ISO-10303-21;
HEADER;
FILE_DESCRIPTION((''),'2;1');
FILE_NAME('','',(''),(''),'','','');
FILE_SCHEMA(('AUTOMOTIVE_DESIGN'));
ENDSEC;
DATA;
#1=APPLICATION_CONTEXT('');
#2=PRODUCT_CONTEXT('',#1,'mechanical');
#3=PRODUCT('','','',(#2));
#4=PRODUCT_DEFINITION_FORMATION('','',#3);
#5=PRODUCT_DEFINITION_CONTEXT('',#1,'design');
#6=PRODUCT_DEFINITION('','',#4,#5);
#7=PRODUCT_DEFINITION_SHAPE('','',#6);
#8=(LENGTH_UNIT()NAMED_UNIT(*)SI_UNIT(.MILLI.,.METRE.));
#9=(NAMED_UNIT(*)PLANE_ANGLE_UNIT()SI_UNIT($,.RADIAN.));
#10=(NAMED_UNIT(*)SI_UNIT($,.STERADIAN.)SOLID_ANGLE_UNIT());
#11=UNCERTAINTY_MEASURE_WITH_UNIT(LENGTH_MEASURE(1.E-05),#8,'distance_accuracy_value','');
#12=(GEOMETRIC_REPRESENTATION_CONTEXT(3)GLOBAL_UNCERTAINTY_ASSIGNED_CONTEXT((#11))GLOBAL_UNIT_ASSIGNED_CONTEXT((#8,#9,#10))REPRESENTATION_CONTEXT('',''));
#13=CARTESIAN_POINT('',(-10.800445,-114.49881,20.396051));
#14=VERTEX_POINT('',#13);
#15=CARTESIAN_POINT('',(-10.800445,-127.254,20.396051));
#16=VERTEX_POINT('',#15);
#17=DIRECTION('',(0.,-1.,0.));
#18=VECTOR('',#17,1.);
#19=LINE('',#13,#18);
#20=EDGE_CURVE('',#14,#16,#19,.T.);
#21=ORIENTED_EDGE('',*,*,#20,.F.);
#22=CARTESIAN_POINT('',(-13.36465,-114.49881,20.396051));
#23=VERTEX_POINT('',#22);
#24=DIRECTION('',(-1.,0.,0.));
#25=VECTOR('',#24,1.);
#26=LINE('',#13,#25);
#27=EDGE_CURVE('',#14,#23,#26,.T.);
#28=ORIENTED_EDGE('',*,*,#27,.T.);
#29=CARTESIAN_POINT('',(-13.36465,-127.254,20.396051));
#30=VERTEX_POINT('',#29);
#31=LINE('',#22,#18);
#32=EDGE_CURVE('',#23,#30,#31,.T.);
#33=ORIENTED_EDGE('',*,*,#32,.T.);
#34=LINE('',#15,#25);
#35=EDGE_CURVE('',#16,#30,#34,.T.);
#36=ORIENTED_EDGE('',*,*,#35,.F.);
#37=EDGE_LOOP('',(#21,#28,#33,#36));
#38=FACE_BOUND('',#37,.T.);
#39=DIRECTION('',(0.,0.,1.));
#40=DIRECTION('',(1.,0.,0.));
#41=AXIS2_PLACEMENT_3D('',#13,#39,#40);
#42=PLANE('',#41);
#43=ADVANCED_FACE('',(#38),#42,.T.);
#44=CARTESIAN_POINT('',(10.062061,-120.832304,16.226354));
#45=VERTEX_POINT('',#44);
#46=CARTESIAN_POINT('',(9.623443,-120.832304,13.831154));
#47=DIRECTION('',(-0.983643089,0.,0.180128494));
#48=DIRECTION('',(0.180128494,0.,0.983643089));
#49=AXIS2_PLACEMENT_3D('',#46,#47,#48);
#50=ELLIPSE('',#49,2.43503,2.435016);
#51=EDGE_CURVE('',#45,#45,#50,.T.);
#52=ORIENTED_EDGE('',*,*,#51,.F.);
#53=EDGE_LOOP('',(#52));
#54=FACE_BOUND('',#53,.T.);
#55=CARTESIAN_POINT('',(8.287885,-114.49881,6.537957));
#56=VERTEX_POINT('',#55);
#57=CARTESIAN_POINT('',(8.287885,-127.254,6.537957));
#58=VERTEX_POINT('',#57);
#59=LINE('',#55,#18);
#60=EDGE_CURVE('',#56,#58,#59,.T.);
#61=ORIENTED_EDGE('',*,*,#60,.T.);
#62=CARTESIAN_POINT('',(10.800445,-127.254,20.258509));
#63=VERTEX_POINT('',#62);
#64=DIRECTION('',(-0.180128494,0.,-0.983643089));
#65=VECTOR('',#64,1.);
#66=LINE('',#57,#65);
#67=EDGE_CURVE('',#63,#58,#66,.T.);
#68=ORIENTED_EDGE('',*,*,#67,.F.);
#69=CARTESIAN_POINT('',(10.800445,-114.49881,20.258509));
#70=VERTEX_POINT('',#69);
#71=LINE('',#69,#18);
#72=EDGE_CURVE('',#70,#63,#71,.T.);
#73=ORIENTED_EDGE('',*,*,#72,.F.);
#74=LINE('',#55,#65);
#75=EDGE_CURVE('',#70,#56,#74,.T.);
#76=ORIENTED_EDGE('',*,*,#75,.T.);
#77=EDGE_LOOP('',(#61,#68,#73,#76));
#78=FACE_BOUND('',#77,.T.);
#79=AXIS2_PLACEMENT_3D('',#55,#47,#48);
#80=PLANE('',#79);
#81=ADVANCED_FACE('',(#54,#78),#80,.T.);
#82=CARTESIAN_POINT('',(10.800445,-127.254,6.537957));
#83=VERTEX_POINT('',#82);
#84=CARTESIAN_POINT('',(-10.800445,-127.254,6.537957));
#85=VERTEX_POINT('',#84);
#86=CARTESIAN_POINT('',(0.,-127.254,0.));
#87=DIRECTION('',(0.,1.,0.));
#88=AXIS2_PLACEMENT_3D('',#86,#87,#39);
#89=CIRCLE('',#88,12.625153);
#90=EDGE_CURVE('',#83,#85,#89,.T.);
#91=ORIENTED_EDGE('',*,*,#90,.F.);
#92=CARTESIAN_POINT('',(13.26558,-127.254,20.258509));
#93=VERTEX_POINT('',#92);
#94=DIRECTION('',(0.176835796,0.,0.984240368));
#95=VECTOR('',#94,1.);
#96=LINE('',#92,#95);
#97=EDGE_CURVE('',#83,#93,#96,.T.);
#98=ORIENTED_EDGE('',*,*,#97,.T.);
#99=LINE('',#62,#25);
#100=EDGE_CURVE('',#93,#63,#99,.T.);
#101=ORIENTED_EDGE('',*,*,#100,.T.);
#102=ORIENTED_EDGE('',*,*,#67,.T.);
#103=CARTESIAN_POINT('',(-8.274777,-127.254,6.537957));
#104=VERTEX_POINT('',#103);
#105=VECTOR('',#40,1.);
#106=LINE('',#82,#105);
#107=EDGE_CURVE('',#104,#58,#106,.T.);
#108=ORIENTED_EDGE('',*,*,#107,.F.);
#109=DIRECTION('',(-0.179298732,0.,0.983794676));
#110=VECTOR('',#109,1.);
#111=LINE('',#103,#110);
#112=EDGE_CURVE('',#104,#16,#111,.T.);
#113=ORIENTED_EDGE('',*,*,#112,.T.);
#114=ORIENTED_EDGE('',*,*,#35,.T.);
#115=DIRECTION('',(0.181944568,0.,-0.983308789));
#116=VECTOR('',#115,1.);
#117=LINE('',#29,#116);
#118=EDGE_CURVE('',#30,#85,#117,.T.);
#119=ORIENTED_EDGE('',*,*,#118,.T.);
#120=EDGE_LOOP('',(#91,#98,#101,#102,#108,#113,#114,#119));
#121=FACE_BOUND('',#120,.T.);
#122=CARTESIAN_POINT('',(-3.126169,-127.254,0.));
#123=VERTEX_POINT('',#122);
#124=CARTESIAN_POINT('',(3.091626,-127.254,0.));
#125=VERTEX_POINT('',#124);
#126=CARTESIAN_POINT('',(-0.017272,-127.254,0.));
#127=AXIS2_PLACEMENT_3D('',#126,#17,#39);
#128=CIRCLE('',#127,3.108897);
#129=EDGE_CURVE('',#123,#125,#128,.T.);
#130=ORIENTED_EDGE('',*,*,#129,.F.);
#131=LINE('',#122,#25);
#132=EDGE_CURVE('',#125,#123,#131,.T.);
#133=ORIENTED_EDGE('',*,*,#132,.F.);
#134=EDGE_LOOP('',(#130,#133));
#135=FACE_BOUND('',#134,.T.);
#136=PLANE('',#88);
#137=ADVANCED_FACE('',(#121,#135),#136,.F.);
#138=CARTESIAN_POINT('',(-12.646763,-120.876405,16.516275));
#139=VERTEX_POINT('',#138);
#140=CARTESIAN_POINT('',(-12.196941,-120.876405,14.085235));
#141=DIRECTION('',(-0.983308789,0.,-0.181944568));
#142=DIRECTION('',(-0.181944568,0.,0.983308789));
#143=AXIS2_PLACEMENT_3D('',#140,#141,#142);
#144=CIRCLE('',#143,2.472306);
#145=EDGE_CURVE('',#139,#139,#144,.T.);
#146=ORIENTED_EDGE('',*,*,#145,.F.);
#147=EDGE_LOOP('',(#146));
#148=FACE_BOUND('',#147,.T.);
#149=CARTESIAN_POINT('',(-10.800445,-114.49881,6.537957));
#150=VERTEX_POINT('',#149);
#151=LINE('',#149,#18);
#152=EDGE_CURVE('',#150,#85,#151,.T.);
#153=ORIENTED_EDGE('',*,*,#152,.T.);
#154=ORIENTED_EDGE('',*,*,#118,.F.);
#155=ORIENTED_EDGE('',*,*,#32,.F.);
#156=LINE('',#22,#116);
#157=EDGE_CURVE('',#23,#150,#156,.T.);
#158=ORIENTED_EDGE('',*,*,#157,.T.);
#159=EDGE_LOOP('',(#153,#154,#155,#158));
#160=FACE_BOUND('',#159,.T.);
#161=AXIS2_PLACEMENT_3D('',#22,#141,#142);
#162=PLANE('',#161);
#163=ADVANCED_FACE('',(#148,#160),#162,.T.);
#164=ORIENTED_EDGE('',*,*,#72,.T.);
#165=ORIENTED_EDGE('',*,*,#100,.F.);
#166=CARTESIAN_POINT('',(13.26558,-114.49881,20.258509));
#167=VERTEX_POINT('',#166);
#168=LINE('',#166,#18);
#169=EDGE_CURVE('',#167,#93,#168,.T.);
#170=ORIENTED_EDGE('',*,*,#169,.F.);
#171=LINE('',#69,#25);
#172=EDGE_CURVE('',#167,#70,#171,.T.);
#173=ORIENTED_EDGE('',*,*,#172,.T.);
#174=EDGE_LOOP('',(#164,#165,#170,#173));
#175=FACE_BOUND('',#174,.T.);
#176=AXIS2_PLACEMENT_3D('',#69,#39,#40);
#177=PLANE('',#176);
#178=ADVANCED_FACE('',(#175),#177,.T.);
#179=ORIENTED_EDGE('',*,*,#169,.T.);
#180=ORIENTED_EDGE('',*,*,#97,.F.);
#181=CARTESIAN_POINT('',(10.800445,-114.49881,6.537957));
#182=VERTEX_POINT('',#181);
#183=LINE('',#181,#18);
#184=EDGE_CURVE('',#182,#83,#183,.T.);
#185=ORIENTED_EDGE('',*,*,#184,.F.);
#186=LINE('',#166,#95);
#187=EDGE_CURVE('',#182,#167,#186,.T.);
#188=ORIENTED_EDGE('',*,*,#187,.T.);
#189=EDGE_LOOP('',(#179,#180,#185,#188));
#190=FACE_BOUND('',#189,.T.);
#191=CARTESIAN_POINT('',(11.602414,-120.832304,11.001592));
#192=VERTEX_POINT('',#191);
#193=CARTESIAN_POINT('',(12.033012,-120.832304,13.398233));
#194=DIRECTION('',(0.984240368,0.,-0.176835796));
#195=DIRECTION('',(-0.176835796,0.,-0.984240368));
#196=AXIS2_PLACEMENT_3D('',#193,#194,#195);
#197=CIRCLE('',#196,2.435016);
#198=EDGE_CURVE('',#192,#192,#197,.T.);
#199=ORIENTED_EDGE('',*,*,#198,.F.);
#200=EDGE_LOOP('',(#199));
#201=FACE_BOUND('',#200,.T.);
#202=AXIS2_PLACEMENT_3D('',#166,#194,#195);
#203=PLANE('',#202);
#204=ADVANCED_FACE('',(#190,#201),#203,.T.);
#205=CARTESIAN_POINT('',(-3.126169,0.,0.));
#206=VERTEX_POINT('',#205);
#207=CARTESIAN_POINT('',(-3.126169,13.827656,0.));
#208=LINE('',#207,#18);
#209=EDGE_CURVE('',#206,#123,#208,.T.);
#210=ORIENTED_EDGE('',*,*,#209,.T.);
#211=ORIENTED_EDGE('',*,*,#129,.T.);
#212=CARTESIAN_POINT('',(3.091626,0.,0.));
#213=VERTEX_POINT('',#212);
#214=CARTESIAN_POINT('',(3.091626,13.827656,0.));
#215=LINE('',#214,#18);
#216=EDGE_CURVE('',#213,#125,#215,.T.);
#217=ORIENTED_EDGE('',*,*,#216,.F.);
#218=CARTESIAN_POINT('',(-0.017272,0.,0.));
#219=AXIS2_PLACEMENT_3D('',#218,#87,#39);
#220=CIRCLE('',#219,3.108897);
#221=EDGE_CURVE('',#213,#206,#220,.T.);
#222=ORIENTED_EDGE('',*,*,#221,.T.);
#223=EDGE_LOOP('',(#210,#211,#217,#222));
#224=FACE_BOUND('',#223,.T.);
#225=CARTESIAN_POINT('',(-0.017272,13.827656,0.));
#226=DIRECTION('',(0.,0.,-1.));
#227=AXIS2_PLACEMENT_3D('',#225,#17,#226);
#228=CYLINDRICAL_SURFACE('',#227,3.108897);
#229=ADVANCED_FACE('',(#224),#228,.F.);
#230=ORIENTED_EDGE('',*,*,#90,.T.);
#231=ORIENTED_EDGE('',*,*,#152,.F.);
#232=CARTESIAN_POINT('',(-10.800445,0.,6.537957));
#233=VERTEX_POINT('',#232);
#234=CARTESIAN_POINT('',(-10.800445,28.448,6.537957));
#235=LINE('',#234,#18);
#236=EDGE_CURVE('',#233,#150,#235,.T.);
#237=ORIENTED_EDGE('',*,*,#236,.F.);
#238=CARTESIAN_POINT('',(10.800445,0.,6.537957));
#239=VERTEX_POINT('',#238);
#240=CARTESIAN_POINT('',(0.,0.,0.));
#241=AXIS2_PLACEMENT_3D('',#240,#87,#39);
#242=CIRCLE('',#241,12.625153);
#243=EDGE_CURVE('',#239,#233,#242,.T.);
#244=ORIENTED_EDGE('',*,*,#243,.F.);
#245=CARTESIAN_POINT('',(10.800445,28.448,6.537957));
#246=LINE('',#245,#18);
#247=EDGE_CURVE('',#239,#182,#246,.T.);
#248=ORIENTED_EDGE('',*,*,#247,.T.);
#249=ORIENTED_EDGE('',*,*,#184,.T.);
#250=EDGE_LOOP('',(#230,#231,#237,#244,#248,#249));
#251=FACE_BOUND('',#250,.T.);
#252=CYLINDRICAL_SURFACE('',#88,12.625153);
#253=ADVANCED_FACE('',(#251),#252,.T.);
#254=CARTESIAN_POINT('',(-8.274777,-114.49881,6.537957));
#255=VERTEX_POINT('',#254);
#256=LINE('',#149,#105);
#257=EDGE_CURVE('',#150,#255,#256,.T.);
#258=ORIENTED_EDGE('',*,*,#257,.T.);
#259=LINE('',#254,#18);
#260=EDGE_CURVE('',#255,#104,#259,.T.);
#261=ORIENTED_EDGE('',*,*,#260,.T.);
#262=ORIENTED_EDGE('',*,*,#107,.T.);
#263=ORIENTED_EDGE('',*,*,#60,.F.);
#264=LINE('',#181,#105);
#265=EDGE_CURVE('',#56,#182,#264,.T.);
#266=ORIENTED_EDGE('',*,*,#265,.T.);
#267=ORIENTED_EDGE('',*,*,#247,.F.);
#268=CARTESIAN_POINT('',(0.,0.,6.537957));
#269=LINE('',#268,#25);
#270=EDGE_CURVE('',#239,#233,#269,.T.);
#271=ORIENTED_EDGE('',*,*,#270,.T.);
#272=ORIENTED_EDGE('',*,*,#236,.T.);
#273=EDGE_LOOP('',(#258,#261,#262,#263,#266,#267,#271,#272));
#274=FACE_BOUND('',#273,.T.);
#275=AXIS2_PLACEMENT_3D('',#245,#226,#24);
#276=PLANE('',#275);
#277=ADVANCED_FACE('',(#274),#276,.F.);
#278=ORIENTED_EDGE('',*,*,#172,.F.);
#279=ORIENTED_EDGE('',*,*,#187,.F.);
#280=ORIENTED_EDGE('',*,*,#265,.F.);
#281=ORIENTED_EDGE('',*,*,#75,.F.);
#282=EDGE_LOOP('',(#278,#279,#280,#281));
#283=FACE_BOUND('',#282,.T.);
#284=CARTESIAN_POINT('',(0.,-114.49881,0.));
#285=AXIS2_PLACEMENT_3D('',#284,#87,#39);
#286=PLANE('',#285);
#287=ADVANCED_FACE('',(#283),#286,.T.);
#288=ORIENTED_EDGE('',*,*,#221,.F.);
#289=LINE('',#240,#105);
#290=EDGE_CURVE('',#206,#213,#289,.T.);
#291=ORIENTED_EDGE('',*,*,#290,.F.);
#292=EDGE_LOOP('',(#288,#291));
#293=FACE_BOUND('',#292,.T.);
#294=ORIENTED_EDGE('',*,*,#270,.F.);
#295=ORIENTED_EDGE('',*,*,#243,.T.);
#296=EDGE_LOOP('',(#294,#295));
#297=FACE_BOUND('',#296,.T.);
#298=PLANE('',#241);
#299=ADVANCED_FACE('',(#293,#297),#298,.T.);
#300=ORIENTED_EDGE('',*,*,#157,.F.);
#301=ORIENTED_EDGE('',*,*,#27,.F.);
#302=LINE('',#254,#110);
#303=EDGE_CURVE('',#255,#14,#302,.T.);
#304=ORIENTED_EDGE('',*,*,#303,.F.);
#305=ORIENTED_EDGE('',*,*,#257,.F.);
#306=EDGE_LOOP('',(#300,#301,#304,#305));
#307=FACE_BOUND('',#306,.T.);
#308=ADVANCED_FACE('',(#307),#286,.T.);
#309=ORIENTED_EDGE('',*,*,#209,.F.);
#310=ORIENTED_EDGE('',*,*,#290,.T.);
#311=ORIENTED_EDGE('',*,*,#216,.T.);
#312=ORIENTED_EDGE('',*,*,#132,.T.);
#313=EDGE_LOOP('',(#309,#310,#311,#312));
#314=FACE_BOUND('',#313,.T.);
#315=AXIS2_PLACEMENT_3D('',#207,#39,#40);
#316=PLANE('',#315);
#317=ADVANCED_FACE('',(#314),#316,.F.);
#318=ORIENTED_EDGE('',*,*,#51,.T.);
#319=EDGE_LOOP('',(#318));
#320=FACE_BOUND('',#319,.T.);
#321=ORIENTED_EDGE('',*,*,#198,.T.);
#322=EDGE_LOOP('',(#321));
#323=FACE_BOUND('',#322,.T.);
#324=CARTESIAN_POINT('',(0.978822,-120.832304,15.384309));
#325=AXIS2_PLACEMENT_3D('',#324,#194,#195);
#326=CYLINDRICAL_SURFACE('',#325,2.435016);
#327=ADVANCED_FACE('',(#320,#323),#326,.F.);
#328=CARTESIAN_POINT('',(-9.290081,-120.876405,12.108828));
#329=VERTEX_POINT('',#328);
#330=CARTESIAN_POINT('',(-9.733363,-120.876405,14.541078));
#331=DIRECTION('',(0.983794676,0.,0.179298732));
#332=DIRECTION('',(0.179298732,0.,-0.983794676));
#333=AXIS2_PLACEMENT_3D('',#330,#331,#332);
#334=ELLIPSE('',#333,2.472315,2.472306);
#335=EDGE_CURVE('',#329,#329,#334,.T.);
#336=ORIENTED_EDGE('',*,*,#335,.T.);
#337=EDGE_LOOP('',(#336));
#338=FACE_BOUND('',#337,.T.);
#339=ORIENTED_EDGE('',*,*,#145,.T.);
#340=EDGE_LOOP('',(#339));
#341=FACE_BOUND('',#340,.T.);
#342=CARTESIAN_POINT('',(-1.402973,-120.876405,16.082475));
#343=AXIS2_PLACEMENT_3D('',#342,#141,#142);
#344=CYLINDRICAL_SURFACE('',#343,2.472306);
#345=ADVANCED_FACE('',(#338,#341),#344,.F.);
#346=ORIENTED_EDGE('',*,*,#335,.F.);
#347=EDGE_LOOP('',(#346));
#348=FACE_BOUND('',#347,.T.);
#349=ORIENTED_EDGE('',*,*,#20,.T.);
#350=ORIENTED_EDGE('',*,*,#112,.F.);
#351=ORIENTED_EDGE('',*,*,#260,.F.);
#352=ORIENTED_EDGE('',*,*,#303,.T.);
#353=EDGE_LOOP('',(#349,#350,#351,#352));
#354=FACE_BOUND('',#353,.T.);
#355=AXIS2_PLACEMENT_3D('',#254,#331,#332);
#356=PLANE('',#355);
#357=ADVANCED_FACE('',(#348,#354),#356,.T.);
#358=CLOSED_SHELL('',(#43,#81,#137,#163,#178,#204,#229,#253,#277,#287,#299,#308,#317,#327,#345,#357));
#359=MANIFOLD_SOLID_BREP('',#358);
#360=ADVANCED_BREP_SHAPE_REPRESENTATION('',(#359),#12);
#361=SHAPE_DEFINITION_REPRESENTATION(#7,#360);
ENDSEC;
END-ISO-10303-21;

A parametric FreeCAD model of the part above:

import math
import FreeCAD as App
import Part
import Sketcher

V = App.Vector
Q = App.Units.Quantity


def add_polygon(sketch, points):
    """Adds a closed chain of lines whose ends are joined by coincident constraints."""
    first, n = sketch.GeometryCount, len(points)
    for a, b in zip(points, points[1:] + points[:1]):
        sketch.addGeometry(Part.LineSegment(App.Vector(*a, 0), App.Vector(*b, 0)), False)
    for i in range(n):
        sketch.addConstraint(Sketcher.Constraint("Coincident", first + i, 2, first + (i + 1) % n, 1))

doc = App.newDocument("Part")
body = doc.addObject("PartDesign::Body", "Body")

sketch1 = body.newObject("Sketcher::SketchObject", "Sketch")
sketch1.AttachmentSupport = (doc.getObject("XZ_Plane"), [""])
sketch1.MapMode = "FlatFace"
sketch1.addGeometry(Part.Circle(V(0, 0, 0), V(0, 0, 1), 13), False)
sketch1.addConstraint([
    Sketcher.Constraint("Coincident", 0, 3, -1, 1),
    Sketcher.Constraint("Diameter", 0, 25.250306),
])
pad1 = body.newObject("PartDesign::Pad", "Pad")
pad1.Profile = sketch1
pad1.Length = Q("5.01 in")

sketch2 = body.newObject("Sketcher::SketchObject", "Sketch001")
sketch2.AttachmentSupport = (doc.getObject("XZ_Plane"), [""])
sketch2.MapMode = "FlatFace"
sketch2.AttachmentOffset = App.Placement(V(0, 0, 5.01 * 25.4), App.Rotation())
add_polygon(sketch2, [(11, 7), (11, 13), (-11, 13), (-11, 7)])
sketch2.addConstraint([
    Sketcher.Constraint("Vertical", 0),
    Sketcher.Constraint("Horizontal", 1),
    Sketcher.Constraint("Vertical", 2),
    Sketcher.Constraint("Horizontal", 3),
    Sketcher.Constraint("DistanceY", -1, 1, 2, 2, Q("0.2573999 in")),
    Sketcher.Constraint("DistanceX", 1, 2, 1, 1, 21.60089),
    Sketcher.Constraint("DistanceY", 0, 1, 0, 2, 6.087197),
    Sketcher.Constraint("DistanceX", -1, 1, 0, 2, 10.800445),
])
pocket1 = body.newObject("PartDesign::Pocket", "Pocket")
pocket1.Profile = sketch2
pocket1.Length = Q("6.13 in")

sketch3 = body.newObject("Sketcher::SketchObject", "Sketch002")
sketch3.AttachmentSupport = (doc.getObject("XZ_Plane"), [""])
sketch3.MapMode = "FlatFace"
sketch3.AttachmentOffset = App.Placement(V(0, 0, 5.01 * 25.4), App.Rotation())
sketch3.addGeometry([
    Part.LineSegment(V(3.1, 0, 0), V(-3.1, 0, 0)),
    Part.ArcOfCircle(Part.Circle(V(0, 0, 0), V(0, 0, 1), 3.1), math.radians(-180), math.radians(0)),
], False)
sketch3.addConstraint([
    Sketcher.Constraint("Coincident", 0, 1, 1, 2),
    Sketcher.Constraint("Coincident", 1, 1, 0, 2),
    Sketcher.Constraint("Horizontal", 0),
    Sketcher.Constraint("PointOnObject", 1, 3, -1),
    Sketcher.Constraint("PointOnObject", 0, 1, -1),
    Sketcher.Constraint("Radius", 1, 3.108897),
    Sketcher.Constraint("DistanceX", 1, 3, -1, 1, 0.017272),
])
pocket2 = body.newObject("PartDesign::Pocket", "Pocket001")
pocket2.Profile = sketch3
pocket2.Length = 141.081656

sketch4 = body.newObject("Sketcher::SketchObject", "Sketch003")
sketch4.AttachmentSupport = (doc.getObject("XZ_Plane"), [""])
sketch4.MapMode = "FlatFace"
sketch4.AttachmentOffset = App.Placement(V(0, 0, 5.01 * 25.4), App.Rotation())
add_polygon(sketch4, [(-10.8, 6.5), (-8.3, 6.5), (-10.8, 20.4), (-13.4, 20.4)])
sketch4.addConstraint([
    Sketcher.Constraint("Horizontal", 0),
    Sketcher.Constraint("Horizontal", 2),
    Sketcher.Constraint("Vertical", 1, 2, 3, 2),
    Sketcher.Constraint("DistanceY", -1, 1, 0, 2, Q("0.2573999 in")),
    Sketcher.Constraint("DistanceX", 0, 1, 0, 2, 2.525668),
    Sketcher.Constraint("Distance", 1, 14.086369),
    Sketcher.Constraint("Distance", 3, 14.09333),
    Sketcher.Constraint("DistanceX", 2, 2, -1, 1, 13.36465),
])
pad2 = body.newObject("PartDesign::Pad", "Pad001")
pad2.Profile = sketch4
pad2.Length = 12.75519
pad2.Reversed = True

sketch5 = body.newObject("Sketcher::SketchObject", "Sketch004")
sketch5.AttachmentSupport = (doc.getObject("XZ_Plane"), [""])
sketch5.MapMode = "FlatFace"
sketch5.AttachmentOffset = App.Placement(V(0, 0, 5.01 * 25.4), App.Rotation())
add_polygon(sketch5, [(8.3, 6.5), (10.8, 6.5), (13.3, 20.3), (10.8, 20.3)])
sketch5.addConstraint([
    Sketcher.Constraint("Horizontal", 0),
    Sketcher.Constraint("Horizontal", 2),
    Sketcher.Constraint("Vertical", 0, 2, 2, 2),
    Sketcher.Constraint("DistanceY", -1, 1, 0, 2, Q("0.2573999 in")),
    Sketcher.Constraint("DistanceX", 0, 1, 0, 2, 2.51256),
    Sketcher.Constraint("Distance", 3, 13.948711),
    Sketcher.Constraint("DistanceX", 2, 2, 2, 1, 2.465134),
    Sketcher.Constraint("DistanceX", -1, 1, 1, 2, 13.26558),
])
pad3 = body.newObject("PartDesign::Pad", "Pad002")
pad3.Profile = sketch5
pad3.Length = 12.75519
pad3.Reversed = True

sketch6 = body.newObject("Sketcher::SketchObject", "Sketch005")
sketch6.Placement = App.Placement(V(9.324781, 0, -1.675358), App.Rotation(V(-0.176835796, 0, -0.984240368), V(0, 1.000000001, 0), V(0.984240368, 0, -0.176835796), "ZXY"))
sketch6.addGeometry(Part.Circle(V(-15.3, -120.8, 0), V(0, 0, 1), 2.4), False)
sketch6.addConstraint([
    Sketcher.Constraint("Diameter", 0, 4.870032),
    Sketcher.Constraint("DistanceX", 0, 3, -1, 1, 15.314949),
    Sketcher.Constraint("DistanceY", 0, 3, -1, 1, 120.832305),
])
pocket3 = body.newObject("PartDesign::Pocket", "Pocket002")
pocket3.Profile = sketch6
pocket3.Length = 11.23119

sketch7 = body.newObject("Sketcher::SketchObject", "Sketch006")
sketch7.Placement = App.Placement(V(-9.273218, 0, -1.715851), App.Rotation(V(-0.181944568, 0, 0.983308789), V(0, 1, 0), V(-0.983308789, 0, -0.181944568), "ZXY"))
sketch7.addGeometry(Part.Circle(V(16.1, -120.9, 0), V(0, 0, 1), 2.5), False)
sketch7.addConstraint([
    Sketcher.Constraint("Diameter", 0, 4.944612),
    Sketcher.Constraint("DistanceX", -1, 1, 0, 3, 16.069303),
    Sketcher.Constraint("DistanceY", 0, 3, -1, 1, 120.876405),
])
pocket4 = body.newObject("PartDesign::Pocket", "Pocket003")
pocket4.Profile = sketch7
pocket4.Length = 10.97719

doc.recompute()
